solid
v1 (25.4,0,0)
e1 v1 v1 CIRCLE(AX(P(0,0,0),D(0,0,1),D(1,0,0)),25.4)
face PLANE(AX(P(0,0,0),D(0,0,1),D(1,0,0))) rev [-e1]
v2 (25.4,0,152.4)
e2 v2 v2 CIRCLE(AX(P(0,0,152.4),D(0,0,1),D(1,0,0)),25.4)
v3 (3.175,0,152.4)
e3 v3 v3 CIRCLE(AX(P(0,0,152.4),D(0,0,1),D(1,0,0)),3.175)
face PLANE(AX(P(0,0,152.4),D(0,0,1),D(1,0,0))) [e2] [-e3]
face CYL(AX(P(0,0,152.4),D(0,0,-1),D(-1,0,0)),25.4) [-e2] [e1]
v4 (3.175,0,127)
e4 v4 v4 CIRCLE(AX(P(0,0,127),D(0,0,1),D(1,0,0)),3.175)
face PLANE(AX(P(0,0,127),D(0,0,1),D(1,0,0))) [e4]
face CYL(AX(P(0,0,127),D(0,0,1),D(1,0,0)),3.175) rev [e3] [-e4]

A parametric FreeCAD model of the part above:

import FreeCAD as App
import Part
import Sketcher

V = App.Vector
Q = App.Units.Quantity

doc = App.newDocument("Part")
body = doc.addObject("PartDesign::Body", "Body")

sketch1 = body.newObject("Sketcher::SketchObject", "Sketch")
sketch1.AttachmentSupport = (doc.getObject("XY_Plane"), [""])
sketch1.MapMode = "FlatFace"
sketch1.addGeometry(Part.Circle(V(0, 0, 0), V(0, 0, 1), 25), False)
sketch1.addConstraint([
    Sketcher.Constraint("Coincident", 0, 3, -1, 1),
    Sketcher.Constraint("Diameter", 0, Q("2 in")),
])
pad1 = body.newObject("PartDesign::Pad", "Pad")
pad1.Profile = sketch1
pad1.Length = Q("6 in")

sketch2 = body.newObject("Sketcher::SketchObject", "Sketch001")
sketch2.AttachmentSupport = (doc.getObject("XY_Plane"), [""])
sketch2.MapMode = "FlatFace"
sketch2.AttachmentOffset = App.Placement(V(0, 0, 6 * 25.4), App.Rotation())
sketch2.addGeometry(Part.Circle(V(0, 0, 0), V(0, 0, 1), 3.2), False)
sketch2.addConstraint([
    Sketcher.Constraint("Coincident", 0, 3, -1, 1),
    Sketcher.Constraint("Diameter", 0, Q("0.25 in")),
])
pocket1 = body.newObject("PartDesign::Pocket", "Pocket")
pocket1.Profile = sketch2
pocket1.Length = Q("1 in")

doc.recompute()
